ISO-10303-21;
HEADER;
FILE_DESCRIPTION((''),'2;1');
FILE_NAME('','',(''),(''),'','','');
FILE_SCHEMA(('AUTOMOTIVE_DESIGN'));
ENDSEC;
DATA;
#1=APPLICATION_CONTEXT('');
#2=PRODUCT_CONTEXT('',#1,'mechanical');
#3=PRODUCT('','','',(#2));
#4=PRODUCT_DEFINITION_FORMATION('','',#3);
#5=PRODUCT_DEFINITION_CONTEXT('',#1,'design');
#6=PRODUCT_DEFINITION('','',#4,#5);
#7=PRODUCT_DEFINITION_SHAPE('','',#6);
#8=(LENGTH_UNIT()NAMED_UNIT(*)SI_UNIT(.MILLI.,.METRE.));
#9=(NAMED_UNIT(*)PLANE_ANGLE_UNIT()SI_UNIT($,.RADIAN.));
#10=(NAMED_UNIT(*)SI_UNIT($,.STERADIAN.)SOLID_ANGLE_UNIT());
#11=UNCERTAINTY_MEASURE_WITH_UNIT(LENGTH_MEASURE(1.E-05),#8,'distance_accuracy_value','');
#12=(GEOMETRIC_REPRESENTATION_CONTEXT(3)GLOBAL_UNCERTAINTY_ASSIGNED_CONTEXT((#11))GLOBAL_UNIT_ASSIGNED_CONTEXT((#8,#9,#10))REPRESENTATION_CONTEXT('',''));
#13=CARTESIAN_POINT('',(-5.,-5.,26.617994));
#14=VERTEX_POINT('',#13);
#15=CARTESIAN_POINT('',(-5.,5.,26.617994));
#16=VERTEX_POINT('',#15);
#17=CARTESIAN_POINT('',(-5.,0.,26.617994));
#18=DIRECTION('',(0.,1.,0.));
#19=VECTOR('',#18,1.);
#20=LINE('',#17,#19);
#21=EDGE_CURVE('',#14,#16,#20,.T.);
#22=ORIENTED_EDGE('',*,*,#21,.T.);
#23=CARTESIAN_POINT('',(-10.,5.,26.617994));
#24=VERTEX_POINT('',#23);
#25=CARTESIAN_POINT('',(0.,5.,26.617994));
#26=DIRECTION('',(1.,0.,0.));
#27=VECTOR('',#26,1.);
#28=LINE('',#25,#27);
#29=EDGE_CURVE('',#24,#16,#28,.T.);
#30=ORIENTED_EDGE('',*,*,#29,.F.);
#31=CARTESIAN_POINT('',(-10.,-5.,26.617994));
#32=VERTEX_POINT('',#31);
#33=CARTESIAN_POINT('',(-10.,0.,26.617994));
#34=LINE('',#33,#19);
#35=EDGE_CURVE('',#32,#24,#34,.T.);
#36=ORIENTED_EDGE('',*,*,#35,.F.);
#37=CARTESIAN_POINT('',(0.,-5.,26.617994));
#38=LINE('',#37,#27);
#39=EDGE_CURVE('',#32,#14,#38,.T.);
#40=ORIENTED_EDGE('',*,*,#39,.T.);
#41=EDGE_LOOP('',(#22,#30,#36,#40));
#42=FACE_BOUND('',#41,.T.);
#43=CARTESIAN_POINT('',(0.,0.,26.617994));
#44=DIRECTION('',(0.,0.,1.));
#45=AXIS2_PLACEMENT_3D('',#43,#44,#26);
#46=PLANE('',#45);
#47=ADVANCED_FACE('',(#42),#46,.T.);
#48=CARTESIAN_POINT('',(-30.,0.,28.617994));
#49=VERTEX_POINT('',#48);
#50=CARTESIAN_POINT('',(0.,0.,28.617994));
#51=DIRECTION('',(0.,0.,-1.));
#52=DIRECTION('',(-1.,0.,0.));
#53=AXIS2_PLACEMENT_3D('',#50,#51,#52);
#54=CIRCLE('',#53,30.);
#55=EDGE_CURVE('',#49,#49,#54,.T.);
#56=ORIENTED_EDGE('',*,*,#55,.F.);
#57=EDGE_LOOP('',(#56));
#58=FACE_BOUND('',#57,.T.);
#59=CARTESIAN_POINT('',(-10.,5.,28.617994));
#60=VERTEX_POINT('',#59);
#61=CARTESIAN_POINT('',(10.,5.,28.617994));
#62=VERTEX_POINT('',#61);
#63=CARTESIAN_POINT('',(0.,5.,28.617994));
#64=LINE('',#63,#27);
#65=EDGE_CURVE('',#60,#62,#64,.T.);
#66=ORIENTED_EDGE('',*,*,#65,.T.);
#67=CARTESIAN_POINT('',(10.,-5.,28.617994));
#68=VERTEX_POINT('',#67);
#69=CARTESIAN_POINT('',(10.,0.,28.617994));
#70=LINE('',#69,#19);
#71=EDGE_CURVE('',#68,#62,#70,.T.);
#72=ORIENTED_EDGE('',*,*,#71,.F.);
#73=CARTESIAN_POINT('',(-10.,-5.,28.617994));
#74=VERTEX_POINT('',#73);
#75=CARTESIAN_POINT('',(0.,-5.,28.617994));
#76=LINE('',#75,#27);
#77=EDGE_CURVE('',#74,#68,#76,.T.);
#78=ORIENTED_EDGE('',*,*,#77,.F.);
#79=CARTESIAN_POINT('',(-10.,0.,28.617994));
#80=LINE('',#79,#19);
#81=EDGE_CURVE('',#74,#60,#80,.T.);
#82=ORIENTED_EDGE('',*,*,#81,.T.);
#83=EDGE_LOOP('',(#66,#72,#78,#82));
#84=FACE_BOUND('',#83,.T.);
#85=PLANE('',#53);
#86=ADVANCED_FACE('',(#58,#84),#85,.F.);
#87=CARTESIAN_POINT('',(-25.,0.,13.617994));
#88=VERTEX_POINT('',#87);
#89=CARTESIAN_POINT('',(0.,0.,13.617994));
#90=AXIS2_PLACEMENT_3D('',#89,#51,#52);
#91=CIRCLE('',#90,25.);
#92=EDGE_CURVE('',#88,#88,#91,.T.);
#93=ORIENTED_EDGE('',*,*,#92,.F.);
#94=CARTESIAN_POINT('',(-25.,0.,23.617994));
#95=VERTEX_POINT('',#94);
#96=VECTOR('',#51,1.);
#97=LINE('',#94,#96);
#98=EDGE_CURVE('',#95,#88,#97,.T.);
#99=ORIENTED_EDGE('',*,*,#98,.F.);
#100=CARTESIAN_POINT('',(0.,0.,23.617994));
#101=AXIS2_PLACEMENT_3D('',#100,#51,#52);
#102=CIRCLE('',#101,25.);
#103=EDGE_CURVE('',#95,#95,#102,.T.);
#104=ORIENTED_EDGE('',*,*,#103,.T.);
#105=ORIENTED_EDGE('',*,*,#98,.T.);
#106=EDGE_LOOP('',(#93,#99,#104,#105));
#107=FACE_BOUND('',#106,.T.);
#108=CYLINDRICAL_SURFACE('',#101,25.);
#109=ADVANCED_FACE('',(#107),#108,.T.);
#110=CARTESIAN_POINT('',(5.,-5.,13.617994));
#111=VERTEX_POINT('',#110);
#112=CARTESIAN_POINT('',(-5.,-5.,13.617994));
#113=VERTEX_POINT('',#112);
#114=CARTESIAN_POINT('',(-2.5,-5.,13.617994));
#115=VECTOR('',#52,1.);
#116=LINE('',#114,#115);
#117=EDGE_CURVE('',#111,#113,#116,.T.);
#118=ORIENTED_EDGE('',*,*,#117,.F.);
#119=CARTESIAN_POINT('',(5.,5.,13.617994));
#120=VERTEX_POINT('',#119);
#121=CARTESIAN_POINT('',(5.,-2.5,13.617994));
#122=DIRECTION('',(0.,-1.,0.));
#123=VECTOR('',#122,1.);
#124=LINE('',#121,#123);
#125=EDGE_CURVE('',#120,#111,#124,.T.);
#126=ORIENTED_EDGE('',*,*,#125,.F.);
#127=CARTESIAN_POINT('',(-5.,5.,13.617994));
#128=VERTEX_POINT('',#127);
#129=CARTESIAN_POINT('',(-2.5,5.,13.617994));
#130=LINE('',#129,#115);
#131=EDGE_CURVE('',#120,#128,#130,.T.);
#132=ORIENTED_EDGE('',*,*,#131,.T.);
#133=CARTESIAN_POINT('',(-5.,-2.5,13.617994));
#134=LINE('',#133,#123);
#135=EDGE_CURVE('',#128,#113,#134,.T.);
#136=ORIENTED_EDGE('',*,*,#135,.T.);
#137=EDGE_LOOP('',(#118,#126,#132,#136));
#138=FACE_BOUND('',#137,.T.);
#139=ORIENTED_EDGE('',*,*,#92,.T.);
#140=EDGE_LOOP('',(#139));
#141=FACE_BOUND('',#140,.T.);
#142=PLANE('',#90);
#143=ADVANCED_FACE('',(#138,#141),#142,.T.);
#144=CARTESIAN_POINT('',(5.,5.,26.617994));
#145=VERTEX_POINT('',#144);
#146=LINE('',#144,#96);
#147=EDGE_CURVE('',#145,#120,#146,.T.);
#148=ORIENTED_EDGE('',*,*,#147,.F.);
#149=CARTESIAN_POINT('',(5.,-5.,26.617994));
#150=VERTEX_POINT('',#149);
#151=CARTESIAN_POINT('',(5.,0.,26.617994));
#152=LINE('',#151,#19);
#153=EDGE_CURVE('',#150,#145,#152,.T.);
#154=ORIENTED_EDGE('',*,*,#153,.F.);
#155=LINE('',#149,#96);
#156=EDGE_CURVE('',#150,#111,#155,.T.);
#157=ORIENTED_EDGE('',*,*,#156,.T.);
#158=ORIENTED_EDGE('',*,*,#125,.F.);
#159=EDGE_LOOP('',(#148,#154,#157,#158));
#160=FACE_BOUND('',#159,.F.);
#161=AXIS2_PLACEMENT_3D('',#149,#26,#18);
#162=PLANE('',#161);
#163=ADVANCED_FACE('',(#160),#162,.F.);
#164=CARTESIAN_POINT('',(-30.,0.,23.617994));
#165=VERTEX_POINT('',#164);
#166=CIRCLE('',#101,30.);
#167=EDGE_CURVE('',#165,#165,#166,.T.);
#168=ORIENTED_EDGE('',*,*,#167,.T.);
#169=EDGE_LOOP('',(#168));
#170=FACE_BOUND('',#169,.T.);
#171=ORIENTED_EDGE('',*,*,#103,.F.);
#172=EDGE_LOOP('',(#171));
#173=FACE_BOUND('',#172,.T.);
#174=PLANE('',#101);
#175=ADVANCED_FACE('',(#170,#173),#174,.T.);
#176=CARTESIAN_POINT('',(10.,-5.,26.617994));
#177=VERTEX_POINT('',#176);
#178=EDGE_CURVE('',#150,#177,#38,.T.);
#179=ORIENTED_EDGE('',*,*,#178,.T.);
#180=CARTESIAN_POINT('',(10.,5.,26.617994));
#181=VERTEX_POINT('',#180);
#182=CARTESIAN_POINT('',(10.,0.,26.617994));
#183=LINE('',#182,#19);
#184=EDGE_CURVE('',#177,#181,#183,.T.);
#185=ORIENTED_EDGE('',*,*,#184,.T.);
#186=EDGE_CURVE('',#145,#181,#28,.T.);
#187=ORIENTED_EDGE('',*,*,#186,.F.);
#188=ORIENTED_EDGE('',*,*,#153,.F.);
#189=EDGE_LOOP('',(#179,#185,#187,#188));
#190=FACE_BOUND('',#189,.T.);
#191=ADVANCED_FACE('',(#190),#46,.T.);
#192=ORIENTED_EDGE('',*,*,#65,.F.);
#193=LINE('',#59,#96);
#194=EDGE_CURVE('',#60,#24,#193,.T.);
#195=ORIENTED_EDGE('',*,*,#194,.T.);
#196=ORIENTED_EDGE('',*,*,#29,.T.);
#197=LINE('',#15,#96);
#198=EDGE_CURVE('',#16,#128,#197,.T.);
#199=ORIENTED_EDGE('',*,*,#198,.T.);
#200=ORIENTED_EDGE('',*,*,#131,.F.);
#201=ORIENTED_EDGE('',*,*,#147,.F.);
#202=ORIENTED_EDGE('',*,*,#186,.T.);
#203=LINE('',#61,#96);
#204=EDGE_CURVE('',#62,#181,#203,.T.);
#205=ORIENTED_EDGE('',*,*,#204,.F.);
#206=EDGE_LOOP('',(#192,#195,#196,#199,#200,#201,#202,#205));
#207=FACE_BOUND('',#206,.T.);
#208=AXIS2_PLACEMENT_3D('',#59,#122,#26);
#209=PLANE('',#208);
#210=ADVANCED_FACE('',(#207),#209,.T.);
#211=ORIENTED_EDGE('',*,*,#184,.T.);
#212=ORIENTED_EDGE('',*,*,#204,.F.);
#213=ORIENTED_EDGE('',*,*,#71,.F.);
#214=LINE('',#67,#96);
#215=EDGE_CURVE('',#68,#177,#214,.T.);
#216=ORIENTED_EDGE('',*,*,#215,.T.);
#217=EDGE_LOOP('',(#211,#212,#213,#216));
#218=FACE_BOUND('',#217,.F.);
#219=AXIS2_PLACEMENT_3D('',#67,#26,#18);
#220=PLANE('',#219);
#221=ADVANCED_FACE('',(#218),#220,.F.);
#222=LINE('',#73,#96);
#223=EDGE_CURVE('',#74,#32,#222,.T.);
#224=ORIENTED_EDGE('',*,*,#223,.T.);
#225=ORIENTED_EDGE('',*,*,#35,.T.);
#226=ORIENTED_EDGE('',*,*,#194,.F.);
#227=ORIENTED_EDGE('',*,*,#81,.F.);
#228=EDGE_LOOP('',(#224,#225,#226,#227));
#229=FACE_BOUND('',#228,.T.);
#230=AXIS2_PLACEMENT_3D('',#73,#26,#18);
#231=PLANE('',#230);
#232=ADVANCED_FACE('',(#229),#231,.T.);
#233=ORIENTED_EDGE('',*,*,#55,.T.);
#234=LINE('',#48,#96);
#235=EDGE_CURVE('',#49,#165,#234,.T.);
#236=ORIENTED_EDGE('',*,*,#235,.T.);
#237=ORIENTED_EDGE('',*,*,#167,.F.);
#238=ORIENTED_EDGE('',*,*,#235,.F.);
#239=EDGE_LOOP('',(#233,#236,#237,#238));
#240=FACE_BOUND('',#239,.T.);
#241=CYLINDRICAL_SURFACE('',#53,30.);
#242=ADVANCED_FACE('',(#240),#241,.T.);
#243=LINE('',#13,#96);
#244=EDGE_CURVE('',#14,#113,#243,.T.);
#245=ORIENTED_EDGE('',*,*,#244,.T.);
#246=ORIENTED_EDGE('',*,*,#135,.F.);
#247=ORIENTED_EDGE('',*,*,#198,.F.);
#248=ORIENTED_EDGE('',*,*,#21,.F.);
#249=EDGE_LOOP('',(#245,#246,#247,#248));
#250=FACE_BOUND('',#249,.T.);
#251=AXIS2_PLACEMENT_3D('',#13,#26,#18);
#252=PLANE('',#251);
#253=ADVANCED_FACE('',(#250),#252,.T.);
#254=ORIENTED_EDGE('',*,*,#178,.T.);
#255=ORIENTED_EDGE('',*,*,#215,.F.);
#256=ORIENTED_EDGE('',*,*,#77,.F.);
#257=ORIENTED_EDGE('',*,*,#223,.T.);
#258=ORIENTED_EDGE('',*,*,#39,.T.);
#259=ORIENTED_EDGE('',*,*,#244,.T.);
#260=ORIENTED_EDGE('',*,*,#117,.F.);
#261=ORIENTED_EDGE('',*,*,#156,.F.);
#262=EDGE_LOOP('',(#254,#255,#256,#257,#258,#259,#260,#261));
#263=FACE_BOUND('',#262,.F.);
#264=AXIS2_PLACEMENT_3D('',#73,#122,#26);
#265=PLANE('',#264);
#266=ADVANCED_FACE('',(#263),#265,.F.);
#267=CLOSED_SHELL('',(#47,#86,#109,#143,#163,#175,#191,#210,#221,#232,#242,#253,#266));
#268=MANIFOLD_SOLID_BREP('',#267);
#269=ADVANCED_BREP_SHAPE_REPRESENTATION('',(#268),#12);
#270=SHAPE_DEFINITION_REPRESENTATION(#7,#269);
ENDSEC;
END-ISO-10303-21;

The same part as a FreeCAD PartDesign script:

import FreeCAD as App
import Part
import Sketcher
Q = App.Units.Quantity

doc = App.newDocument("Part")
body = doc.addObject("PartDesign::Body", "Body")

# Sketch on XZ plane
sketch1 = doc.addObject("Sketcher::SketchObject", "Sketch")
body.addObject(sketch1)
sketch1.AttachmentSupport = (doc.XZ_Plane, [""])
sketch1.MapMode = "FlatFace"
sketch1.addGeometry([
    Part.LineSegment(App.Vector(0, 14, 0), App.Vector(0, 29, 0)),  # 0
    Part.LineSegment(App.Vector(0, 29, 0), App.Vector(-30, 29, 0)),  # 1
    Part.LineSegment(App.Vector(-30, 29, 0), App.Vector(-30, 24, 0)),  # 2
    Part.LineSegment(App.Vector(-30, 24, 0), App.Vector(-25, 24, 0)),  # 3
    Part.LineSegment(App.Vector(-25, 24, 0), App.Vector(-25, 14, 0)),  # 4
    Part.LineSegment(App.Vector(-25, 14, 0), App.Vector(0, 14, 0)),  # 5
], False)
sketch1.addConstraint([
    Sketcher.Constraint("Coincident", 0, 2, 1, 1),
    Sketcher.Constraint("Coincident", 1, 2, 2, 1),
    Sketcher.Constraint("Coincident", 2, 2, 3, 1),
    Sketcher.Constraint("Coincident", 3, 2, 4, 1),
    Sketcher.Constraint("Coincident", 4, 2, 5, 1),
    Sketcher.Constraint("Coincident", 5, 2, 0, 1),
    Sketcher.Constraint("Vertical", 0),
    Sketcher.Constraint("Horizontal", 1),
    Sketcher.Constraint("Vertical", 2),
    Sketcher.Constraint("Horizontal", 3),
    Sketcher.Constraint("Vertical", 4),
    Sketcher.Constraint("Horizontal", 5),
    Sketcher.Constraint("PointOnObject", 0, 2, -2),
    Sketcher.Constraint("Equal", 3, 2),
    Sketcher.Constraint("DistanceX", 1, 2, 1, 1, Q("30 mm")),
    Sketcher.Constraint("DistanceX", 3, 1, 3, 2, Q("5 mm")),
    Sketcher.Constraint("DistanceY", 0, 1, 0, 2, Q("15 mm")),
    Sketcher.Constraint("DistanceY", -1, 1, 0, 2, Q("28.617994 mm")),
])
revolution = doc.addObject("PartDesign::Revolution", "Revolution")
body.addObject(revolution)
revolution.Profile = sketch1
revolution.ReferenceAxis = (sketch1, ["V_Axis"])
revolution.Angle = 360

# Sketch on XY plane
sketch2 = doc.addObject("Sketcher::SketchObject", "Sketch001")
body.addObject(sketch2)
sketch2.AttachmentSupport = (doc.XY_Plane, [""])
sketch2.MapMode = "FlatFace"
sketch2.AttachmentOffset = App.Placement(App.Vector(0, 0, 28.617994), App.Rotation())
sketch2.addGeometry([
    Part.LineSegment(App.Vector(-10, 5, 0), App.Vector(-10, -5, 0)),
    Part.LineSegment(App.Vector(-10, -5, 0), App.Vector(10, -5, 0)),
    Part.LineSegment(App.Vector(10, -5, 0), App.Vector(10, 5, 0)),
    Part.LineSegment(App.Vector(10, 5, 0), App.Vector(-10, 5, 0)),
], False)
sketch2.addConstraint([
    Sketcher.Constraint("Coincident", 0, 2, 1, 1),
    Sketcher.Constraint("Coincident", 1, 2, 2, 1),
    Sketcher.Constraint("Coincident", 2, 2, 3, 1),
    Sketcher.Constraint("Coincident", 3, 2, 0, 1),
    Sketcher.Constraint("Vertical", 0),
    Sketcher.Constraint("Horizontal", 1),
    Sketcher.Constraint("Vertical", 2),
    Sketcher.Constraint("Horizontal", 3),
    Sketcher.Constraint("Symmetric", 0, 2, 2, 2, -1, 1),
    Sketcher.Constraint("DistanceX", 1, 1, 1, 2, Q("20 mm")),
    Sketcher.Constraint("DistanceY", 0, 2, 0, 1, Q("10 mm")),
])
pocket1 = doc.addObject("PartDesign::Pocket", "Pocket")
body.addObject(pocket1)
pocket1.Profile = sketch2
pocket1.Length = 2

# Sketch on XY plane
sketch3 = doc.addObject("Sketcher::SketchObject", "Sketch002")
body.addObject(sketch3)
sketch3.AttachmentSupport = (doc.XY_Plane, [""])
sketch3.MapMode = "FlatFace"
sketch3.AttachmentOffset = App.Placement(App.Vector(0, 0, 26.617994), App.Rotation())
sketch3.addGeometry([
    Part.LineSegment(App.Vector(-5, 5, 0), App.Vector(-5, -5, 0)),
    Part.LineSegment(App.Vector(-5, -5, 0), App.Vector(5, -5, 0)),
    Part.LineSegment(App.Vector(5, -5, 0), App.Vector(5, 5, 0)),
    Part.LineSegment(App.Vector(5, 5, 0), App.Vector(-5, 5, 0)),
], False)
sketch3.addConstraint([
    Sketcher.Constraint("Coincident", 0, 2, 1, 1),
    Sketcher.Constraint("Coincident", 1, 2, 2, 1),
    Sketcher.Constraint("Coincident", 2, 2, 3, 1),
    Sketcher.Constraint("Coincident", 3, 2, 0, 1),
    Sketcher.Constraint("Vertical", 0),
    Sketcher.Constraint("Horizontal", 1),
    Sketcher.Constraint("Vertical", 2),
    Sketcher.Constraint("Horizontal", 3),
    Sketcher.Constraint("Symmetric", 0, 2, 2, 2, -1, 1),
    Sketcher.Constraint("Equal", 3, 0),
    Sketcher.Constraint("DistanceX", 1, 1, 1, 2, Q("10 mm")),
])
pocket2 = doc.addObject("PartDesign::Pocket", "Pocket001")
body.addObject(pocket2)
pocket2.Profile = sketch3
pocket2.Length = 25

doc.recompute()
